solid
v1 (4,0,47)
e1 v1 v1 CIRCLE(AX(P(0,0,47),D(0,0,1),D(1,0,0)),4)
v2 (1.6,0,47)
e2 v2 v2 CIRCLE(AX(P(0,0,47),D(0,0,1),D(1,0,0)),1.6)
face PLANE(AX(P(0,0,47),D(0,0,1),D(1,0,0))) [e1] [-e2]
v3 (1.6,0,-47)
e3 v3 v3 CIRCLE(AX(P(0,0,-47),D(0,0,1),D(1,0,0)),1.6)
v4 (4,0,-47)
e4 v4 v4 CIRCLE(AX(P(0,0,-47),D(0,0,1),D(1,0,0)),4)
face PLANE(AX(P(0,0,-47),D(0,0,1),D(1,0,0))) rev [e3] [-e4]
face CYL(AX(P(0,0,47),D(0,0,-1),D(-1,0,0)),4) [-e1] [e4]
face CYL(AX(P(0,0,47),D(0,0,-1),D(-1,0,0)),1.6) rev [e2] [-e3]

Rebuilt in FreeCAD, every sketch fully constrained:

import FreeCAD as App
import Part
import Sketcher
from FreeCAD import Vector
Q = App.Units.Quantity

doc = App.newDocument("Part")
body = doc.addObject("PartDesign::Body", "Body")

sketch1 = body.newObject("Sketcher::SketchObject", "Sketch")
sketch1.AttachmentSupport = (doc.getObject("XY_Plane"), [""])
sketch1.MapMode = "FlatFace"
sketch1.addGeometry([
    Part.Circle(Vector(0, 0, 0), Vector(0, 0, 1), 4),
    Part.Circle(Vector(0, 0, 0), Vector(0, 0, 1), 1.6),
], False)
sketch1.addConstraint([
    Sketcher.Constraint("Coincident", 0, 3, -1, 1),
    Sketcher.Constraint("Coincident", 1, 3, -1, 1),
    Sketcher.Constraint("Diameter", 0, Q("8 mm")),
    Sketcher.Constraint("Diameter", 1, Q("3.2 mm")),
])
pad1 = body.newObject("PartDesign::Pad", "Pad")
pad1.Profile = sketch1
pad1.Length = 94
pad1.Midplane = True

doc.recompute()
